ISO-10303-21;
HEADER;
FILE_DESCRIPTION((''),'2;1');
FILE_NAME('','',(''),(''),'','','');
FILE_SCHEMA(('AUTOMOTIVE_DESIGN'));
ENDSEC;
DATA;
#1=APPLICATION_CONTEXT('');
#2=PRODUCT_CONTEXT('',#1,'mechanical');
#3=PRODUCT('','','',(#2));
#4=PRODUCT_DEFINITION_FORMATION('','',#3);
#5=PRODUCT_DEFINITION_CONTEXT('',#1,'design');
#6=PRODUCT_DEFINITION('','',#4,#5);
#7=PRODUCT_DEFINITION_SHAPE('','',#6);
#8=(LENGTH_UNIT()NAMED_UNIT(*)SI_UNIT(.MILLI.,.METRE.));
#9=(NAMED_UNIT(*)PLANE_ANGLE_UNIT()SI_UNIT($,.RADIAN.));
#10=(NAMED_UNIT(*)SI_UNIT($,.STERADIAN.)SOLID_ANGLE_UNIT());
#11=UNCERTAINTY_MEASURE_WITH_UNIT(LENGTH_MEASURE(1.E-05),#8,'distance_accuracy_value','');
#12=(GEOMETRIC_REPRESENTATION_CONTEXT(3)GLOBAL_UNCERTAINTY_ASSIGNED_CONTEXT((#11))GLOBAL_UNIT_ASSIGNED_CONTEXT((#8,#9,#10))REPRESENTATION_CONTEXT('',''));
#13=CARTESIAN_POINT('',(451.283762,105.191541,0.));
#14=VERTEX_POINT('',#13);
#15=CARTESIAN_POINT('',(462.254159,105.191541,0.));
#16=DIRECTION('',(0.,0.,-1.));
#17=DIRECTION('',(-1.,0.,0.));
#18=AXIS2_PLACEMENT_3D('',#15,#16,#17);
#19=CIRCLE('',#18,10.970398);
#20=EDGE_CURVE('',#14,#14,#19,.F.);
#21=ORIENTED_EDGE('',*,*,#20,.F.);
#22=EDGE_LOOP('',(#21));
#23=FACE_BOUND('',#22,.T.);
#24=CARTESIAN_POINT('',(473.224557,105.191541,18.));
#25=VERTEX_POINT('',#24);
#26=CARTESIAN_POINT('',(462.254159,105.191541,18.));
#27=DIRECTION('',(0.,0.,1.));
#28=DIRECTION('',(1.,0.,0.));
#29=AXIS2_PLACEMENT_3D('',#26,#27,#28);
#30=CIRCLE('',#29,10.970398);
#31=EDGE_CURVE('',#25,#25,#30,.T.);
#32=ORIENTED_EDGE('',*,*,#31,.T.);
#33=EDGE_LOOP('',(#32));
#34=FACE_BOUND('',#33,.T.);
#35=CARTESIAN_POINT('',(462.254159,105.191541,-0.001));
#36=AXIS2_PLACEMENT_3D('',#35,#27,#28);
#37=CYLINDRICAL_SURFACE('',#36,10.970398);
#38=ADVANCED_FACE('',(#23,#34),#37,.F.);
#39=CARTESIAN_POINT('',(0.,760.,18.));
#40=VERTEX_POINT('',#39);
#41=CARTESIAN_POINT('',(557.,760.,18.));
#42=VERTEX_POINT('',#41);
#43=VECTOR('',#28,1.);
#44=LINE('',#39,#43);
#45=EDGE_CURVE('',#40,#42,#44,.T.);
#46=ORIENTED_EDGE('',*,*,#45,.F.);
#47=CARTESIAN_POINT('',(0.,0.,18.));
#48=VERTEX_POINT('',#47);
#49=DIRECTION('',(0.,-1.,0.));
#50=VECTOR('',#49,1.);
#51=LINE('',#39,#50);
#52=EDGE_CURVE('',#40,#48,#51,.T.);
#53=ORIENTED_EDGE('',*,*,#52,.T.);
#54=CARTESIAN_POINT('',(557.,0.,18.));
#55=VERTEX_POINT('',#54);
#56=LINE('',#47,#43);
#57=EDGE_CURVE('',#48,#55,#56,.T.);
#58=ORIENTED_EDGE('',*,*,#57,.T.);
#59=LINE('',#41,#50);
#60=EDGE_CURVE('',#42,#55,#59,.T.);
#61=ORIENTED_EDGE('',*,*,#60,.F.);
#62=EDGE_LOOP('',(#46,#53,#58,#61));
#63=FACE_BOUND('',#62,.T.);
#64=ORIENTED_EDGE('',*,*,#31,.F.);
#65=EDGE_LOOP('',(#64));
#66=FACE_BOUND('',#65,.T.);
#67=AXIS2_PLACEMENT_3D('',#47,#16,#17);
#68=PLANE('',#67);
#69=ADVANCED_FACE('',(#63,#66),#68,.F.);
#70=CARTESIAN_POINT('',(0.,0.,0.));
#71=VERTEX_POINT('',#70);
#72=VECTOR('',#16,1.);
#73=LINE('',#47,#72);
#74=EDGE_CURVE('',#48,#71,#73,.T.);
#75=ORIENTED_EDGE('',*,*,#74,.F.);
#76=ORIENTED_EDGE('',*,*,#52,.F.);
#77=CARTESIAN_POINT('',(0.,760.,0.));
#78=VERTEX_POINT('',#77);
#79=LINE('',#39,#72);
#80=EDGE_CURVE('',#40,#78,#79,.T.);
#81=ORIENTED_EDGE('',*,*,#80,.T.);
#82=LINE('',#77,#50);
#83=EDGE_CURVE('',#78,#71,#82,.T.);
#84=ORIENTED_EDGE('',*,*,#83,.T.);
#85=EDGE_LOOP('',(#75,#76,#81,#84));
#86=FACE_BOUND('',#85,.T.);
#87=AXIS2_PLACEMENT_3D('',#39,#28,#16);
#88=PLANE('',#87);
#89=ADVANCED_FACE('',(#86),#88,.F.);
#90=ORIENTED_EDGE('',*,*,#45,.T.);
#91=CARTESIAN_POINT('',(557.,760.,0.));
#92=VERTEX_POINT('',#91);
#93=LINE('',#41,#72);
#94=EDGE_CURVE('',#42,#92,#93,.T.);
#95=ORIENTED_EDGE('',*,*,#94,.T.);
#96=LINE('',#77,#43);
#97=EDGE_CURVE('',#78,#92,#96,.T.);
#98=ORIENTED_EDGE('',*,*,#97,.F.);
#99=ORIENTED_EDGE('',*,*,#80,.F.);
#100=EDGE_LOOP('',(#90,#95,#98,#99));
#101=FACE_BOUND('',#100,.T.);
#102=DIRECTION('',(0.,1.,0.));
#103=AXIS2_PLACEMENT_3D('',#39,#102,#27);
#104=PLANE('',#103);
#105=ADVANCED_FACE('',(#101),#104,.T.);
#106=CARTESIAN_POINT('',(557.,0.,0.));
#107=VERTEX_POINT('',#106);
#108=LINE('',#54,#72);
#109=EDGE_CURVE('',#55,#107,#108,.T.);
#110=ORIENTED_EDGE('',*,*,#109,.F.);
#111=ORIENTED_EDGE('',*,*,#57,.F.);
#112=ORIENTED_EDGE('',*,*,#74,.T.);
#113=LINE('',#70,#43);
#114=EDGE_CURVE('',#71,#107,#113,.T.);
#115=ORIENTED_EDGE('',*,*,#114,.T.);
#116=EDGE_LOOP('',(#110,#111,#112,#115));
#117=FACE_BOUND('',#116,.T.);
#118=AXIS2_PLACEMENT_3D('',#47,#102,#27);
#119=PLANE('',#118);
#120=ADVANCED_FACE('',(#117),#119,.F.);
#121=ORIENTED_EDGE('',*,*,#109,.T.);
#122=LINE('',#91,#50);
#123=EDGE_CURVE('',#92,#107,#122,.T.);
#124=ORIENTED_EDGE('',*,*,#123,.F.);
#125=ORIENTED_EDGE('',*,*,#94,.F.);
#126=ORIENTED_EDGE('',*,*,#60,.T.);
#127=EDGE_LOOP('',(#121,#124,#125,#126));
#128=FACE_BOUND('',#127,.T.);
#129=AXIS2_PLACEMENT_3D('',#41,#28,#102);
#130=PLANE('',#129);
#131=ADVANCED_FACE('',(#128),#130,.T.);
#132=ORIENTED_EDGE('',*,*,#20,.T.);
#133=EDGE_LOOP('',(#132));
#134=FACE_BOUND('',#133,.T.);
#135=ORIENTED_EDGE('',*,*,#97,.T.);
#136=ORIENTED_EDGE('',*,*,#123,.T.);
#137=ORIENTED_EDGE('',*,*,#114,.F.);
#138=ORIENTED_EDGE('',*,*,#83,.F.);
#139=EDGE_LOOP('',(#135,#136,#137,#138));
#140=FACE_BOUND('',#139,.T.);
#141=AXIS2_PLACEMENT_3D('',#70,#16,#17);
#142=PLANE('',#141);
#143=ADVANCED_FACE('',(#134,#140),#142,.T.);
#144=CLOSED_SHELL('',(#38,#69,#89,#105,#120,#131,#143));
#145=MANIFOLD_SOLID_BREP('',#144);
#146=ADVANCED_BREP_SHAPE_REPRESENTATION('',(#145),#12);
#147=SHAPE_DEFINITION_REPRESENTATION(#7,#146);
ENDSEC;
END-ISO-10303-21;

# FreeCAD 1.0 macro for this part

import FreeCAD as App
import Part
import Sketcher

V = App.Vector
Q = App.Units.Quantity

doc = App.newDocument("Part")
body = doc.addObject("PartDesign::Body", "Body")

sketch1 = body.newObject("Sketcher::SketchObject", "Sketch")
sketch1.AttachmentSupport = (doc.getObject("XY_Plane"), [""])
sketch1.MapMode = "FlatFace"
sketch1.addGeometry([
    Part.LineSegment(V(0, 760, 0), V(0, 0, 0)),
    Part.LineSegment(V(0, 0, 0), V(557, 0, 0)),
    Part.LineSegment(V(557, 0, 0), V(557, 760, 0)),
    Part.LineSegment(V(557, 760, 0), V(0, 760, 0)),
], False)
sketch1.addConstraint([
    Sketcher.Constraint("Coincident", 0, 2, 1, 1),
    Sketcher.Constraint("Coincident", 1, 2, 2, 1),
    Sketcher.Constraint("Coincident", 2, 2, 3, 1),
    Sketcher.Constraint("Coincident", 3, 2, 0, 1),
    Sketcher.Constraint("Vertical", 0),
    Sketcher.Constraint("Horizontal", 1),
    Sketcher.Constraint("Vertical", 2),
    Sketcher.Constraint("Horizontal", 3),
    Sketcher.Constraint("Coincident", 0, 2, -1, 1),
    Sketcher.Constraint("DistanceX", 1, 1, 1, 2, Q("557 mm")),
    Sketcher.Constraint("DistanceY", 0, 2, 0, 1, Q("760 mm")),
])
pad1 = body.newObject("PartDesign::Pad", "Pad")
pad1.Profile = sketch1
pad1.Length = 18

sketch2 = body.newObject("Sketcher::SketchObject", "Sketch001")
sketch2.AttachmentSupport = (doc.getObject("XY_Plane"), [""])
sketch2.MapMode = "FlatFace"
sketch2.AttachmentOffset = App.Placement(V(0, 0, 18), App.Rotation())
sketch2.addGeometry(Part.Circle(V(462.254159, 105.191541, 0), V(0, 0, 1), 10.970398), False)
sketch2.addConstraint([
    Sketcher.Constraint("Diameter", 0, Q("21.940795 mm")),
    Sketcher.Constraint("DistanceX", -1, 1, 0, 3, Q("462.254159 mm")),
    Sketcher.Constraint("DistanceY", -1, 1, 0, 3, Q("105.191541 mm")),
])
pocket1 = body.newObject("PartDesign::Pocket", "Pocket")
pocket1.Profile = sketch2
pocket1.Type = "UpToFirst"

doc.recompute()
